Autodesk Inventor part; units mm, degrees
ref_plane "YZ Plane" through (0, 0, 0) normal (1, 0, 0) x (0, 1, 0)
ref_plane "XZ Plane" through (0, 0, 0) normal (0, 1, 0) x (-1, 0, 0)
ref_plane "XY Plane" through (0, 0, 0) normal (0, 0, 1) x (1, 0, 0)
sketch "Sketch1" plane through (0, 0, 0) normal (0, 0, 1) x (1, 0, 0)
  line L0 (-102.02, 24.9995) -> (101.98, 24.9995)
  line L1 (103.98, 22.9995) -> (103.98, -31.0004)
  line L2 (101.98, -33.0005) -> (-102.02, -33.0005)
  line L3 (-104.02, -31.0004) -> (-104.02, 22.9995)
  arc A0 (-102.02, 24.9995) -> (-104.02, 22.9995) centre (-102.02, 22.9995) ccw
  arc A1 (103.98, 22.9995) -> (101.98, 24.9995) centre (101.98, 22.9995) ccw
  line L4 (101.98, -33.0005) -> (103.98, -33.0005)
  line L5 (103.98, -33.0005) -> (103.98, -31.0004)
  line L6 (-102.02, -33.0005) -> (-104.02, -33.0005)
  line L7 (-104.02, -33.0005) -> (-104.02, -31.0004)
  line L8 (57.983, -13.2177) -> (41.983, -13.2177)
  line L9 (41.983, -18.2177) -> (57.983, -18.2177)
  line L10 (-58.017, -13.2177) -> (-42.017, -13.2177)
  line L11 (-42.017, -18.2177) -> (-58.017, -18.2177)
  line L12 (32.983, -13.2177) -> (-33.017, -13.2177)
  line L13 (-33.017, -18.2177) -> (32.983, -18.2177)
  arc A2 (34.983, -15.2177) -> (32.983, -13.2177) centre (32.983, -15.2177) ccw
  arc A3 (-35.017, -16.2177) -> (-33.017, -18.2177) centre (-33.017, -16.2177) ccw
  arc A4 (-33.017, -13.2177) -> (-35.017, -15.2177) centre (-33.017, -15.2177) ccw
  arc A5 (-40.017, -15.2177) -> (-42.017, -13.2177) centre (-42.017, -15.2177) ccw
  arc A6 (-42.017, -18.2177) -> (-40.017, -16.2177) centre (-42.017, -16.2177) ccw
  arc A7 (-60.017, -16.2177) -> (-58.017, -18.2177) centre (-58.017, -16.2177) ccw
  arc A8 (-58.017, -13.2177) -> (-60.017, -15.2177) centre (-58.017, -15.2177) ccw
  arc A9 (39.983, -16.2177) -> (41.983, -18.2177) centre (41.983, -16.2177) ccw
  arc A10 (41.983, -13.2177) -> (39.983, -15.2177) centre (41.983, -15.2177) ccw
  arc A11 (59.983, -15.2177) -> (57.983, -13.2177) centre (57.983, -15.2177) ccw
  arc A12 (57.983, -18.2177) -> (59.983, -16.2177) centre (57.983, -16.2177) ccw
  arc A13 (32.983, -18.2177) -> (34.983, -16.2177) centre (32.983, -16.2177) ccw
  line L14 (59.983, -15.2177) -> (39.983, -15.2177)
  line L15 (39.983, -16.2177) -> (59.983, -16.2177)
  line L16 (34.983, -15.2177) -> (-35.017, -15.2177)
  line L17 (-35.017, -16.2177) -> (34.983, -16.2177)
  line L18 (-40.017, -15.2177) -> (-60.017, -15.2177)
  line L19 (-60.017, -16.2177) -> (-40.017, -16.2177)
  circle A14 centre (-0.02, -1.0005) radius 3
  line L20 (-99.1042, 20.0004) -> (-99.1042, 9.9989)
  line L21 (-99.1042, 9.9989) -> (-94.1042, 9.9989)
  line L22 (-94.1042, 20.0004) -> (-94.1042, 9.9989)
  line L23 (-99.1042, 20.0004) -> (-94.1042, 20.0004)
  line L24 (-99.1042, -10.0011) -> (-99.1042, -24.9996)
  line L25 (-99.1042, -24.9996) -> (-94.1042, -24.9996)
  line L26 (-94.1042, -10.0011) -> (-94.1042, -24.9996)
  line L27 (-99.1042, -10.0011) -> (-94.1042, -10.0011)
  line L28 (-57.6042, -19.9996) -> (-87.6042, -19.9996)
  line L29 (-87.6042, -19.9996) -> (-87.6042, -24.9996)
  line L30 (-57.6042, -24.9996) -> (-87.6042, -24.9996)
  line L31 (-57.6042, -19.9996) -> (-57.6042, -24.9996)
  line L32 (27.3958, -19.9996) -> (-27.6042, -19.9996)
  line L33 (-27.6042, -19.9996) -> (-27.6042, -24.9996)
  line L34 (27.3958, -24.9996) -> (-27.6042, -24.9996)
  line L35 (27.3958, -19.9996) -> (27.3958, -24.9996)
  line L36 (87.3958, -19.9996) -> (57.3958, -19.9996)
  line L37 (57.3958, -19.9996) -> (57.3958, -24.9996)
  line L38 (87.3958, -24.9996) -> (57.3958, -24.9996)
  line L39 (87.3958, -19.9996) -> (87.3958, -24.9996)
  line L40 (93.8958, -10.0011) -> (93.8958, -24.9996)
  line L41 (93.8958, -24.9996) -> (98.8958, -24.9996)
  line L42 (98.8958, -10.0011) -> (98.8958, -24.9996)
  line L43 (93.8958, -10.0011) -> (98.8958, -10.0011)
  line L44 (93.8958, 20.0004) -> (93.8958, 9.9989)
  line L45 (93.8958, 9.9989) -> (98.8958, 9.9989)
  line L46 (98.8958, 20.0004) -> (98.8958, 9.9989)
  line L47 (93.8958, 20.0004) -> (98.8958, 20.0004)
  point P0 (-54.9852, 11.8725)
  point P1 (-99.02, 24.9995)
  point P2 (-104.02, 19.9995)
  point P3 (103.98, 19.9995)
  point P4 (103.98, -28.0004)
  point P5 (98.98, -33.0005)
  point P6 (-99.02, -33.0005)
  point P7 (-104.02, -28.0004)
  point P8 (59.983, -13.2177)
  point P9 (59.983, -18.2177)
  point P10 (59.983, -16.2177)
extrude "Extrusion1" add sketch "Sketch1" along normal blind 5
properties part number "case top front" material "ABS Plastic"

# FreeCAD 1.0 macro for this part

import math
import FreeCAD as App
import Part
import Sketcher
from FreeCAD import Vector
Q = App.Units.Quantity


def add_polygon(sketch, points):
    """Adds a closed chain of lines whose ends are joined by coincident constraints."""
    first, n = sketch.GeometryCount, len(points)
    for a, b in zip(points, points[1:] + points[:1]):
        sketch.addGeometry(Part.LineSegment(App.Vector(*a, 0), App.Vector(*b, 0)), False)
    for i in range(n):
        sketch.addConstraint(Sketcher.Constraint("Coincident", first + i, 2, first + (i + 1) % n, 1))

doc = App.newDocument("Part")
body = doc.addObject("PartDesign::Body", "Body")

# Sketch on XY plane
sketch1 = body.newObject("Sketcher::SketchObject", "Sketch")
sketch1.AttachmentSupport = (doc.getObject("XY_Plane"), [""])
sketch1.MapMode = "FlatFace"
sketch1.addGeometry(Part.LineSegment(Vector(102, 25, 0), Vector(-102, 25, 0)), False)  # 0
sketch1.addGeometry(Part.ArcOfCircle(Part.Circle(Vector(-102, 23, 0), Vector(0, 0, 1), 2), math.radians(90), math.radians(180)), False)  # 1
sketch1.addGeometry(Part.LineSegment(Vector(-104, 23, 0), Vector(-104, -33, 0)), False)  # 2
sketch1.addGeometry(Part.LineSegment(Vector(-104, -33, 0), Vector(104, -33, 0)), False)  # 3
sketch1.addGeometry(Part.LineSegment(Vector(104, -33, 0), Vector(104, 23, 0)), False)  # 4
sketch1.addGeometry(Part.ArcOfCircle(Part.Circle(Vector(102, 23, 0), Vector(0, 0, 1), 2), math.radians(0), math.radians(90)), False)  # 5
add_polygon(sketch1, [(-87.6, -20), (-57.6, -20), (-57.6, -25), (-87.6, -25)])  # lines 6-9
add_polygon(sketch1, [(-27.6, -20), (27.4, -20), (27.4, -25), (-27.6, -25)])  # lines 10-13
add_polygon(sketch1, [(-99.1, -25), (-99.1, -10), (-94.1, -10), (-94.1, -25)])  # lines 14-17
sketch1.addGeometry(Part.ArcOfCircle(Part.Circle(Vector(-42, -16.2, 0), Vector(0, 0, 1), 2), math.radians(-90), math.radians(0)), False)  # 18
sketch1.addGeometry(Part.LineSegment(Vector(-42, -18.2, 0), Vector(-58, -18.2, 0)), False)  # 19
sketch1.addGeometry(Part.ArcOfCircle(Part.Circle(Vector(-58, -16.2, 0), Vector(0, 0, 1), 2), math.radians(180), math.radians(270)), False)  # 20
sketch1.addGeometry(Part.LineSegment(Vector(-60, -16.2, 0), Vector(-40, -16.2, 0)), False)  # 21
sketch1.addGeometry(Part.ArcOfCircle(Part.Circle(Vector(-58, -15.2, 0), Vector(0, 0, 1), 2), math.radians(90), math.radians(180)), False)  # 22
sketch1.addGeometry(Part.LineSegment(Vector(-58, -13.2, 0), Vector(-42, -13.2, 0)), False)  # 23
sketch1.addGeometry(Part.ArcOfCircle(Part.Circle(Vector(-42, -15.2, 0), Vector(0, 0, 1), 2), math.radians(0), math.radians(90)), False)  # 24
sketch1.addGeometry(Part.LineSegment(Vector(-40, -15.2, 0), Vector(-60, -15.2, 0)), False)  # 25
add_polygon(sketch1, [(57.4, -20), (87.4, -20), (87.4, -25), (57.4, -25)])  # lines 26-29
sketch1.addGeometry(Part.LineSegment(Vector(33, -18.2, 0), Vector(-33, -18.2, 0)), False)  # 30
sketch1.addGeometry(Part.ArcOfCircle(Part.Circle(Vector(-33, -16.2, 0), Vector(0, 0, 1), 2), math.radians(180), math.radians(270)), False)  # 31
sketch1.addGeometry(Part.LineSegment(Vector(-35, -16.2, 0), Vector(35, -16.2, 0)), False)  # 32
sketch1.addGeometry(Part.ArcOfCircle(Part.Circle(Vector(33, -16.2, 0), Vector(0, 0, 1), 2), math.radians(-90), math.radians(0)), False)  # 33
sketch1.addGeometry(Part.LineSegment(Vector(-33, -13.2, 0), Vector(33, -13.2, 0)), False)  # 34
sketch1.addGeometry(Part.ArcOfCircle(Part.Circle(Vector(33, -15.2, 0), Vector(0, 0, 1), 2), math.radians(0), math.radians(90)), False)  # 35
sketch1.addGeometry(Part.LineSegment(Vector(35, -15.2, 0), Vector(-35, -15.2, 0)), False)  # 36
sketch1.addGeometry(Part.ArcOfCircle(Part.Circle(Vector(-33, -15.2, 0), Vector(0, 0, 1), 2), math.radians(90), math.radians(180)), False)  # 37
sketch1.addGeometry(Part.LineSegment(Vector(58, -18.2, 0), Vector(42, -18.2, 0)), False)  # 38
sketch1.addGeometry(Part.ArcOfCircle(Part.Circle(Vector(42, -16.2, 0), Vector(0, 0, 1), 2), math.radians(180), math.radians(270)), False)  # 39
sketch1.addGeometry(Part.LineSegment(Vector(40, -16.2, 0), Vector(60, -16.2, 0)), False)  # 40
sketch1.addGeometry(Part.ArcOfCircle(Part.Circle(Vector(58, -16.2, 0), Vector(0, 0, 1), 2), math.radians(-90), math.radians(0)), False)  # 41
sketch1.addGeometry(Part.LineSegment(Vector(42, -13.2, 0), Vector(58, -13.2, 0)), False)  # 42
sketch1.addGeometry(Part.ArcOfCircle(Part.Circle(Vector(58, -15.2, 0), Vector(0, 0, 1), 2), math.radians(0), math.radians(90)), False)  # 43
sketch1.addGeometry(Part.LineSegment(Vector(60, -15.2, 0), Vector(40, -15.2, 0)), False)  # 44
sketch1.addGeometry(Part.ArcOfCircle(Part.Circle(Vector(42, -15.2, 0), Vector(0, 0, 1), 2), math.radians(90), math.radians(180)), False)  # 45
add_polygon(sketch1, [(93.9, -25), (93.9, -10), (98.9, -10), (98.9, -25)])  # lines 46-49
add_polygon(sketch1, [(-99.1, 10), (-99.1, 20), (-94.1, 20), (-94.1, 10)])  # lines 50-53
sketch1.addGeometry(Part.Circle(Vector(0, -1, 0), Vector(0, 0, 1), 3), False)  # 54
add_polygon(sketch1, [(93.9, 10), (93.9, 20), (98.9, 20), (98.9, 10)])  # lines 55-58
sketch1.addConstraint([
    Sketcher.Constraint("Tangent", 0, 2, 1, 1),
    Sketcher.Constraint("Tangent", 1, 2, 2, 1),
    Sketcher.Constraint("Coincident", 2, 2, 3, 1),
    Sketcher.Constraint("Coincident", 3, 2, 4, 1),
    Sketcher.Constraint("Tangent", 4, 2, 5, 1),
    Sketcher.Constraint("Tangent", 5, 2, 0, 1),
    Sketcher.Constraint("Tangent", 18, 1, 19, 1),
    Sketcher.Constraint("Tangent", 19, 2, 20, 2),
    Sketcher.Constraint("Coincident", 20, 1, 21, 1),
    Sketcher.Constraint("Coincident", 21, 2, 18, 2),
    Sketcher.Constraint("Tangent", 22, 1, 23, 1),
    Sketcher.Constraint("Tangent", 23, 2, 24, 2),
    Sketcher.Constraint("Coincident", 24, 1, 25, 1),
    Sketcher.Constraint("Coincident", 25, 2, 22, 2),
    Sketcher.Constraint("Tangent", 30, 2, 31, 2),
    Sketcher.Constraint("Coincident", 31, 1, 32, 1),
    Sketcher.Constraint("Coincident", 32, 2, 33, 2),
    Sketcher.Constraint("Tangent", 33, 1, 30, 1),
    Sketcher.Constraint("Tangent", 34, 2, 35, 2),
    Sketcher.Constraint("Coincident", 35, 1, 36, 1),
    Sketcher.Constraint("Coincident", 36, 2, 37, 2),
    Sketcher.Constraint("Tangent", 37, 1, 34, 1),
    Sketcher.Constraint("Tangent", 38, 2, 39, 2),
    Sketcher.Constraint("Coincident", 39, 1, 40, 1),
    Sketcher.Constraint("Coincident", 40, 2, 41, 2),
    Sketcher.Constraint("Tangent", 41, 1, 38, 1),
    Sketcher.Constraint("Tangent", 42, 2, 43, 2),
    Sketcher.Constraint("Coincident", 43, 1, 44, 1),
    Sketcher.Constraint("Coincident", 44, 2, 45, 2),
    Sketcher.Constraint("Tangent", 45, 1, 42, 1),
    Sketcher.Constraint("Horizontal", 0),
    Sketcher.Constraint("Vertical", 2),
    Sketcher.Constraint("Horizontal", 3),
    Sketcher.Constraint("Vertical", 4),
    Sketcher.Constraint("Horizontal", 6),
    Sketcher.Constraint("Vertical", 7),
    Sketcher.Constraint("Horizontal", 8),
    Sketcher.Constraint("Vertical", 9),
    Sketcher.Constraint("Horizontal", 10),
    Sketcher.Constraint("Vertical", 11),
    Sketcher.Constraint("Horizontal", 12),
    Sketcher.Constraint("Vertical", 13),
    Sketcher.Constraint("Vertical", 14),
    Sketcher.Constraint("Horizontal", 15),
    Sketcher.Constraint("Vertical", 16),
    Sketcher.Constraint("Horizontal", 17),
    Sketcher.Constraint("Horizontal", 19),
    Sketcher.Constraint("Horizontal", 21),
    Sketcher.Constraint("Horizontal", 23),
    Sketcher.Constraint("Horizontal", 25),
    Sketcher.Constraint("Horizontal", 26),
    Sketcher.Constraint("Vertical", 27),
    Sketcher.Constraint("Horizontal", 28),
    Sketcher.Constraint("Vertical", 29),
    Sketcher.Constraint("Horizontal", 30),
    Sketcher.Constraint("Horizontal", 32),
    Sketcher.Constraint("Horizontal", 34),
    Sketcher.Constraint("Horizontal", 36),
    Sketcher.Constraint("Horizontal", 38),
    Sketcher.Constraint("Horizontal", 40),
    Sketcher.Constraint("Horizontal", 42),
    Sketcher.Constraint("Horizontal", 44),
    Sketcher.Constraint("Vertical", 46),
    Sketcher.Constraint("Horizontal", 47),
    Sketcher.Constraint("Vertical", 48),
    Sketcher.Constraint("Horizontal", 49),
    Sketcher.Constraint("Vertical", 50),
    Sketcher.Constraint("Horizontal", 51),
    Sketcher.Constraint("Vertical", 52),
    Sketcher.Constraint("Horizontal", 53),
    Sketcher.Constraint("Vertical", 55),
    Sketcher.Constraint("Horizontal", 56),
    Sketcher.Constraint("Vertical", 57),
    Sketcher.Constraint("Horizontal", 58),
    Sketcher.Constraint("Equal", 1, 5),
    Sketcher.Constraint("Equal", 5, 18),
    Sketcher.Constraint("Equal", 18, 20),
    Sketcher.Constraint("Equal", 20, 22),
    Sketcher.Constraint("Equal", 22, 24),
    Sketcher.Constraint("Equal", 24, 31),
    Sketcher.Constraint("Equal", 31, 33),
    Sketcher.Constraint("Equal", 33, 35),
    Sketcher.Constraint("Equal", 35, 37),
    Sketcher.Constraint("Equal", 37, 39),
    Sketcher.Constraint("Equal", 39, 41),
    Sketcher.Constraint("Equal", 41, 43),
    Sketcher.Constraint("Equal", 43, 45),
    Sketcher.Constraint("Horizontal", 20, 3, 31, 3),
    Sketcher.Constraint("Horizontal", 24, 3, 35, 3),
    Sketcher.Constraint("Horizontal", 33, 3, 39, 3),
    Sketcher.Constraint("Horizontal", 37, 3, 43, 3),
    Sketcher.Constraint("Horizontal", 9, 2, 10, 2),
    Sketcher.Constraint("Horizontal", 8, 2, 11, 2),
    Sketcher.Constraint("Horizontal", 12, 2, 16, 2),
    Sketcher.Constraint("Horizontal", 41, 3, 20, 1),
    Sketcher.Constraint("Horizontal", 45, 3, 24, 1),
    Sketcher.Constraint("Horizontal", 13, 2, 26, 2),
    Sketcher.Constraint("Horizontal", 17, 2, 27, 2),
    Sketcher.Constraint("Horizontal", 21, 2, 31, 1),
    Sketcher.Constraint("Horizontal", 25, 2, 35, 1),
    Sketcher.Constraint("Horizontal", 32, 2, 39, 1),
    Sketcher.Constraint("Horizontal", 36, 2, 43, 1),
    Sketcher.Constraint("Horizontal", 15, 2, 46, 2),
    Sketcher.Constraint("Horizontal", 28, 2, 48, 2),
    Sketcher.Constraint("Horizontal", 51, 2, 55, 2),
    Sketcher.Constraint("Horizontal", 53, 2, 57, 2),
    Sketcher.Constraint("Vertical", 20, 3, 22, 3),
    Sketcher.Constraint("Vertical", 18, 3, 24, 3),
    Sketcher.Constraint("Vertical", 33, 3, 35, 3),
    Sketcher.Constraint("Vertical", 31, 3, 37, 3),
    Sketcher.Constraint("Vertical", 41, 3, 43, 3),
    Sketcher.Constraint("Vertical", 39, 3, 45, 3),
    Sketcher.Constraint("Vertical", 17, 2, 50, 2),
    Sketcher.Constraint("Vertical", 16, 2, 51, 2),
    Sketcher.Constraint("Vertical", 49, 2, 55, 2),
    Sketcher.Constraint("Vertical", 48, 2, 56, 2),
    Sketcher.Constraint("Equal", 8, 26),
    Sketcher.Constraint("Equal", 23, 38),
    Sketcher.Constraint("Equal", 17, 47),
    Sketcher.Constraint("Equal", 58, 7),
    Sketcher.Constraint("Diameter", 54, Q("6 mm")),
    Sketcher.Constraint("Radius", 1, Q("2 mm")),
    Sketcher.Constraint("DistanceX", 0, 2, 0, 1, Q("204 mm")),
    Sketcher.Constraint("DistanceX", 6, 1, 6, 2, Q("30 mm")),
    Sketcher.Constraint("DistanceX", 10, 1, 10, 2, Q("55 mm")),
    Sketcher.Constraint("DistanceX", 15, 1, 15, 2, Q("5 mm")),
    Sketcher.Constraint("DistanceX", 19, 2, 19, 1, Q("16 mm")),
    Sketcher.Constraint("DistanceX", 30, 2, 30, 1, Q("66 mm")),
    Sketcher.Constraint("DistanceY", 2, 2, 2, 1, Q("56 mm")),
    Sketcher.Constraint("DistanceX", 1, 3, -1, 1, Q("102.02 mm")),
    Sketcher.Constraint("DistanceX", 54, 3, -1, 1, Q("0.02 mm")),
    Sketcher.Constraint("DistanceY", 14, 1, 14, 2, Q("14.9985 mm")),
    Sketcher.Constraint("DistanceY", 50, 1, 50, 2, Q("10.0015 mm")),
    Sketcher.Constraint("DistanceX", 18, 3, -1, 1, Q("42.017 mm")),
    Sketcher.Constraint("DistanceX", 31, 3, -1, 1, Q("33.017 mm")),
    Sketcher.Constraint("DistanceX", -1, 1, 39, 3, Q("41.983 mm")),
    Sketcher.Constraint("DistanceY", 14, 2, -1, 1, Q("10.001 mm")),
    Sketcher.Constraint("DistanceY", -1, 1, 52, 2, Q("9.999 mm")),
    Sketcher.Constraint("DistanceY", -1, 1, 1, 3, Q("22.9995 mm")),
    Sketcher.Constraint("DistanceY", 18, 3, -1, 1, Q("16.2177 mm")),
    Sketcher.Constraint("DistanceY", 22, 3, -1, 1, Q("15.2177 mm")),
    Sketcher.Constraint("DistanceY", 54, 3, -1, 1, Q("1.0005 mm")),
    Sketcher.Constraint("DistanceX", 6, 2, -1, 1, Q("57.6042 mm")),
    Sketcher.Constraint("DistanceX", -1, 1, 10, 2, Q("27.3958 mm")),
    Sketcher.Constraint("DistanceX", 14, 2, -1, 1, Q("99.1042 mm")),
    Sketcher.Constraint("DistanceX", -1, 1, 26, 2, Q("87.3958 mm")),
    Sketcher.Constraint("DistanceX", -1, 1, 46, 2, Q("93.8958 mm")),
])
pad1 = body.newObject("PartDesign::Pad", "Pad")
pad1.Profile = sketch1
pad1.Length = 5

doc.recompute()
